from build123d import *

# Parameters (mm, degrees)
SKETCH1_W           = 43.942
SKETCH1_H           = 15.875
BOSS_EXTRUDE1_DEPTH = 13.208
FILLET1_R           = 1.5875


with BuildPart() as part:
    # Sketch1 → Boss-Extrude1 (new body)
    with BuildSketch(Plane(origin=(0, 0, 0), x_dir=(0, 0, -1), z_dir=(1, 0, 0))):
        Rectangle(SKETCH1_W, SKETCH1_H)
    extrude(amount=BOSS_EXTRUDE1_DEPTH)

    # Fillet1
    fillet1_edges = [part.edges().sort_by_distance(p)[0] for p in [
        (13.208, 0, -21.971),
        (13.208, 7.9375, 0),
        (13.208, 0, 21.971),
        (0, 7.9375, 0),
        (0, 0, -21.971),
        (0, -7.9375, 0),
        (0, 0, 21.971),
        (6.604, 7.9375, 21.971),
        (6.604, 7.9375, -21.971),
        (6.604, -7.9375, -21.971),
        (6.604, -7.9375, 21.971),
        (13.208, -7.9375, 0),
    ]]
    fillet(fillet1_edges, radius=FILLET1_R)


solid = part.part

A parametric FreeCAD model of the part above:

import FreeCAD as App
import Part
import Sketcher
Q = App.Units.Quantity


def add_polygon(sketch, points):
    """Adds a closed chain of lines whose ends are joined by coincident constraints."""
    first, n = sketch.GeometryCount, len(points)
    for a, b in zip(points, points[1:] + points[:1]):
        sketch.addGeometry(Part.LineSegment(App.Vector(*a, 0), App.Vector(*b, 0)), False)
    for i in range(n):
        sketch.addConstraint(Sketcher.Constraint("Coincident", first + i, 2, first + (i + 1) % n, 1))

doc = App.newDocument("Part")
body = doc.addObject("PartDesign::Body", "Body")

# Sketch on YZ plane
sketch1 = body.newObject("Sketcher::SketchObject", "Sketch")
sketch1.AttachmentSupport = (doc.getObject("YZ_Plane"), [""])
sketch1.MapMode = "FlatFace"
add_polygon(sketch1, [(8, 22), (-8, 22), (-8, -22), (8, -22)])  # lines 0-3
sketch1.addConstraint([
    Sketcher.Constraint("Horizontal", 0),
    Sketcher.Constraint("Vertical", 1),
    Sketcher.Constraint("Horizontal", 2),
    Sketcher.Constraint("Vertical", 3),
    Sketcher.Constraint("Symmetric", 0, 2, 2, 2, -1, 1),
    Sketcher.Constraint("DistanceY", 1, 2, 1, 1, Q("1.73 in")),
    Sketcher.Constraint("DistanceX", 0, 2, 0, 1, Q("0.625 in")),
])
pad1 = body.newObject("PartDesign::Pad", "Pad")
pad1.Profile = sketch1
pad1.Length = Q("0.52 in")
doc.recompute()

fillet = body.newObject("PartDesign::Fillet", "Fillet")
fillet.Base = (pad1, ["Edge1"])
fillet.UseAllEdges = True
fillet.Radius = Q("0.0625 in")

doc.recompute()
